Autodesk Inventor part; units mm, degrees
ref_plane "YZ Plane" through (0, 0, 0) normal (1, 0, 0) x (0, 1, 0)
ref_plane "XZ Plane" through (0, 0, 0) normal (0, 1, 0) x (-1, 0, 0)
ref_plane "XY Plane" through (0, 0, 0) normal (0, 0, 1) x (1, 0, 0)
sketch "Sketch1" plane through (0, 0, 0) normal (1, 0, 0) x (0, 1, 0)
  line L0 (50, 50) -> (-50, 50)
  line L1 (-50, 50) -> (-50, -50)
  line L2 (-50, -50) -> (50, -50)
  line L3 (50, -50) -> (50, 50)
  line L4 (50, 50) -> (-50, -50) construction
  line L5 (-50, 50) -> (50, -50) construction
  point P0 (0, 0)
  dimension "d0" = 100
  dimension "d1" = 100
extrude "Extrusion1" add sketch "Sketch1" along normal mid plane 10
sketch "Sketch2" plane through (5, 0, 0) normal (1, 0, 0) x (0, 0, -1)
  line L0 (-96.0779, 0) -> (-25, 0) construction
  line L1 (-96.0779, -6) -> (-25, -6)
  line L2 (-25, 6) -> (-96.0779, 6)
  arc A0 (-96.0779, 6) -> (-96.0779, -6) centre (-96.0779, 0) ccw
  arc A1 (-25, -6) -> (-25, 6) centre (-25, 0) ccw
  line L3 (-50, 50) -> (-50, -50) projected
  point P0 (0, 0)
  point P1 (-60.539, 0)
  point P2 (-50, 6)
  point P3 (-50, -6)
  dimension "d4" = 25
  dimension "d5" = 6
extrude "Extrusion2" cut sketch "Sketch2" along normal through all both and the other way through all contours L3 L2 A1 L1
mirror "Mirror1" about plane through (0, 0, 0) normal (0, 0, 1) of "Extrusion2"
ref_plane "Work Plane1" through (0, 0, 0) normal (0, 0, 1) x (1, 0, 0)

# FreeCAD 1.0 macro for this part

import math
import FreeCAD as App
import Part
import Sketcher
from FreeCAD import Vector

doc = App.newDocument("Part")
body = doc.addObject("PartDesign::Body", "Body")

# Sketch on YZ plane
sketch1 = body.newObject("Sketcher::SketchObject", "Sketch")
sketch1.AttachmentSupport = (doc.getObject("YZ_Plane"), [""])
sketch1.MapMode = "FlatFace"
sketch1.addGeometry([
    Part.LineSegment(Vector(50, -50, 0), Vector(50, 50, 0)),
    Part.LineSegment(Vector(50, 50, 0), Vector(-50, 50, 0)),
    Part.LineSegment(Vector(-50, 50, 0), Vector(-50, -50, 0)),
    Part.LineSegment(Vector(-50, -50, 0), Vector(50, -50, 0)),
], False)
sketch1.addConstraint([
    Sketcher.Constraint("Coincident", 0, 2, 1, 1),
    Sketcher.Constraint("Coincident", 1, 2, 2, 1),
    Sketcher.Constraint("Coincident", 2, 2, 3, 1),
    Sketcher.Constraint("Coincident", 3, 2, 0, 1),
    Sketcher.Constraint("Vertical", 0),
    Sketcher.Constraint("Horizontal", 1),
    Sketcher.Constraint("Vertical", 2),
    Sketcher.Constraint("Horizontal", 3),
    Sketcher.Constraint("Symmetric", 0, 2, 2, 2, -1, 1),
    Sketcher.Constraint("Equal", 3, 0),
    Sketcher.Constraint("DistanceX", 1, 2, 1, 1, 100.0),
])
pad1 = body.newObject("PartDesign::Pad", "Pad")
pad1.Profile = sketch1
pad1.Length = 10
pad1.Midplane = True

# Sketch on YZ plane
sketch2 = body.newObject("Sketcher::SketchObject", "Sketch001")
sketch2.AttachmentSupport = (doc.getObject("YZ_Plane"), [""])
sketch2.MapMode = "FlatFace"
sketch2.AttachmentOffset = App.Placement(Vector(0, 0, 5), App.Rotation())
sketch2.addGeometry([
    Part.LineSegment(Vector(6, 50, 0), Vector(-6, 50, 0)),
    Part.LineSegment(Vector(-6, 50, 0), Vector(-6, 25, 0)),
    Part.ArcOfCircle(Part.Circle(Vector(0, 25, 0), Vector(0, 0, 1), 6), math.radians(180), math.radians(360)),
    Part.LineSegment(Vector(6, 25, 0), Vector(6, 50, 0)),
], False)
sketch2.addConstraint([
    Sketcher.Constraint("Coincident", 0, 2, 1, 1),
    Sketcher.Constraint("Tangent", 1, 2, 2, 1),
    Sketcher.Constraint("Tangent", 2, 2, 3, 1),
    Sketcher.Constraint("Coincident", 3, 2, 0, 1),
    Sketcher.Constraint("Horizontal", 0),
    Sketcher.Constraint("Vertical", 1),
    Sketcher.Constraint("Vertical", 3),
    Sketcher.Constraint("PointOnObject", 2, 3, -2),
    Sketcher.Constraint("Radius", 2, 6.0),
    Sketcher.Constraint("DistanceY", 1, 2, 1, 1, 25.0),
    Sketcher.Constraint("DistanceY", -1, 1, 2, 3, 25.0),
])
pocket1 = body.newObject("PartDesign::Pocket", "Pocket")
pocket1.Profile = sketch2
pocket1.Type = "ThroughAll"
pocket1.Midplane = True
doc.recompute()

mirrored = body.newObject("PartDesign::Mirrored", "Mirrored")
mirrored.Originals = [pocket1]
mirrored.MirrorPlane = (doc.getObject("XY_Plane"), [""])
body.Tip = mirrored

doc.recompute()
